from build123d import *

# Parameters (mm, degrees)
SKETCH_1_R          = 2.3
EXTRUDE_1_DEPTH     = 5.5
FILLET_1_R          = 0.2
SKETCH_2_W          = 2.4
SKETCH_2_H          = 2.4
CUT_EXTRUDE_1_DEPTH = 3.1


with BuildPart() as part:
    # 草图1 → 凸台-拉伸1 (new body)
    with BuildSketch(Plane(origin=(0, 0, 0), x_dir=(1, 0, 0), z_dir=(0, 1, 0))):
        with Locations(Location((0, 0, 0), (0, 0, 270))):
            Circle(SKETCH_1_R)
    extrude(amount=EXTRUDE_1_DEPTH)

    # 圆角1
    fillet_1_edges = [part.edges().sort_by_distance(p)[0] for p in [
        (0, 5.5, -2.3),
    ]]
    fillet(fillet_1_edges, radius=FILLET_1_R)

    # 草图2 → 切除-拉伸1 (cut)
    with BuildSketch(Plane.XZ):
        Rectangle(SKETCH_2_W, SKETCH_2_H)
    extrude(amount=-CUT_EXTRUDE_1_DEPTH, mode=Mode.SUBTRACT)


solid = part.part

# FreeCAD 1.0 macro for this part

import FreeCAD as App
import Part
import Sketcher
from FreeCAD import Vector
Q = App.Units.Quantity


def edges_at(feature, points):
    """Names of the edges that pass closest to the given points."""
    edges = feature.Shape.Edges
    near = lambda p: min(range(len(edges)), key=lambda i: edges[i].distToShape(Part.Vertex(*p))[0])
    return sorted({f"Edge{near(p) + 1}" for p in points})


def add_polygon(sketch, points):
    """Adds a closed chain of lines whose ends are joined by coincident constraints."""
    first, n = sketch.GeometryCount, len(points)
    for a, b in zip(points, points[1:] + points[:1]):
        sketch.addGeometry(Part.LineSegment(App.Vector(*a, 0), App.Vector(*b, 0)), False)
    for i in range(n):
        sketch.addConstraint(Sketcher.Constraint("Coincident", first + i, 2, first + (i + 1) % n, 1))

doc = App.newDocument("Part")
params = doc.addObject("Spreadsheet::Sheet", "Params")
for row, (alias, value) in enumerate([
    ("sketch1_diameter", "4.6 mm"),
    ("pad1_length", "5.5 mm"),
    ("fillet_radius", "0.2 mm"),
    ("sketch2_width", "2.4 mm"),
    ("pocket1_length", "3.1 mm"),
], start=1):
    params.set(f"A{row}", alias)
    params.set(f"B{row}", "=" + value)
    params.setAlias(f"B{row}", alias)

body = doc.addObject("PartDesign::Body", "Body")

# Sketch on XZ plane
sketch1 = body.newObject("Sketcher::SketchObject", "Sketch")
sketch1.AttachmentSupport = (doc.getObject("XZ_Plane"), [""])
sketch1.MapMode = "FlatFace"
sketch1.addGeometry(Part.Circle(Vector(0, 0, 0), Vector(0, 0, 1), 2.3), False)
sketch1.addConstraint([
    Sketcher.Constraint("Coincident", 0, 3, -1, 1),
    Sketcher.Constraint("Diameter", 0, Q("4.6 mm")),
])
sketch1.setExpression("Constraints[1]", "Params.sketch1_diameter")
pad1 = body.newObject("PartDesign::Pad", "Pad")
pad1.Profile = sketch1
pad1.setExpression("Length", "Params.pad1_length")
pad1.Reversed = True
doc.recompute()

fillet = body.newObject("PartDesign::Fillet", "Fillet")
fillet.Base = (pad1, edges_at(pad1, [(0, 5.5, -2.3)]))
fillet.setExpression("Radius", "Params.fillet_radius")

# Sketch on XZ plane
sketch2 = body.newObject("Sketcher::SketchObject", "Sketch001")
sketch2.AttachmentSupport = (doc.getObject("XZ_Plane"), [""])
sketch2.MapMode = "FlatFace"
add_polygon(sketch2, [(-1.2, 1.2), (-1.2, -1.2), (1.2, -1.2), (1.2, 1.2)])  # lines 0-3
sketch2.addConstraint([
    Sketcher.Constraint("Vertical", 0),
    Sketcher.Constraint("Horizontal", 1),
    Sketcher.Constraint("Vertical", 2),
    Sketcher.Constraint("Horizontal", 3),
    Sketcher.Constraint("Symmetric", 0, 2, 2, 2, -1, 1),
    Sketcher.Constraint("Equal", 3, 0),
    Sketcher.Constraint("DistanceX", 1, 1, 1, 2, Q("2.4 mm")),
])
sketch2.setExpression("Constraints[10]", "Params.sketch2_width")
pocket1 = body.newObject("PartDesign::Pocket", "Pocket")
pocket1.Profile = sketch2
pocket1.setExpression("Length", "Params.pocket1_length")

doc.recompute()
